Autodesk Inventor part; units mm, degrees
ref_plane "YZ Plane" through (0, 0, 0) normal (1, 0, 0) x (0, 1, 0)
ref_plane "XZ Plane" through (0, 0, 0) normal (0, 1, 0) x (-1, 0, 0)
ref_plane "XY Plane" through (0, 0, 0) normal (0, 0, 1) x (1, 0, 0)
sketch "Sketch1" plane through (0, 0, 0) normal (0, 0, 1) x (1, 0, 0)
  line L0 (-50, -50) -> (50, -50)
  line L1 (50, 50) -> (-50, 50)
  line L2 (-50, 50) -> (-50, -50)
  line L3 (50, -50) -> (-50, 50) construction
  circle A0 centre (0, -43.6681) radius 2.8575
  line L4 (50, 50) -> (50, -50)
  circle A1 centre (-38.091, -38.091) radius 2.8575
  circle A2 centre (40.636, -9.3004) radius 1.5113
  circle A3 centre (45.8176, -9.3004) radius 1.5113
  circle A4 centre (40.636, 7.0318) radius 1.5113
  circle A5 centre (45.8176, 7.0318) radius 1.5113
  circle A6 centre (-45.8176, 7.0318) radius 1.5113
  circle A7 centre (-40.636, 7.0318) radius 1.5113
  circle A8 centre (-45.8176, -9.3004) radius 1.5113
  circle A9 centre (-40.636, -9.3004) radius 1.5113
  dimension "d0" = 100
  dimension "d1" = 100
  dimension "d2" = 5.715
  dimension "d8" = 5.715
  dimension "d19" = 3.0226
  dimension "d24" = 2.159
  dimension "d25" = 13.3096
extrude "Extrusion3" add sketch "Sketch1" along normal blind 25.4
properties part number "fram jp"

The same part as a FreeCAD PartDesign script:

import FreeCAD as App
import Part
import Sketcher

V = App.Vector
Q = App.Units.Quantity

doc = App.newDocument("Part")
body = doc.addObject("PartDesign::Body", "Body")

# Sketch on XY plane
sketch1 = body.newObject("Sketcher::SketchObject", "Sketch")
sketch1.AttachmentSupport = (doc.getObject("XY_Plane"), [""])
sketch1.MapMode = "FlatFace"
sketch1.addGeometry([
    Part.LineSegment(V(-50, 50, 0), V(-50, -50, 0)),  # 0
    Part.LineSegment(V(-50, -50, 0), V(50, -50, 0)),  # 1
    Part.LineSegment(V(50, -50, 0), V(50, 50, 0)),  # 2
    Part.LineSegment(V(50, 50, 0), V(-50, 50, 0)),  # 3
    Part.Circle(V(-38.1, -38.1, 0), V(0, 0, 1), 2.9),  # 4
    Part.Circle(V(-45.8, -9.3, 0), V(0, 0, 1), 1.5),  # 5
    Part.Circle(V(-40.6, -9.3, 0), V(0, 0, 1), 1.5),  # 6
    Part.Circle(V(0, -43.7, 0), V(0, 0, 1), 2.9),  # 7
    Part.Circle(V(40.6, -9.3, 0), V(0, 0, 1), 1.5),  # 8
    Part.Circle(V(45.8, -9.3, 0), V(0, 0, 1), 1.5),  # 9
    Part.Circle(V(-45.8, 7, 0), V(0, 0, 1), 1.5),  # 10
    Part.Circle(V(-40.6, 7, 0), V(0, 0, 1), 1.5),  # 11
    Part.Circle(V(40.6, 7, 0), V(0, 0, 1), 1.5),  # 12
    Part.Circle(V(45.8, 7, 0), V(0, 0, 1), 1.5),  # 13
], False)
sketch1.addConstraint([
    Sketcher.Constraint("Coincident", 0, 2, 1, 1),
    Sketcher.Constraint("Coincident", 1, 2, 2, 1),
    Sketcher.Constraint("Coincident", 2, 2, 3, 1),
    Sketcher.Constraint("Coincident", 3, 2, 0, 1),
    Sketcher.Constraint("Vertical", 0),
    Sketcher.Constraint("Horizontal", 1),
    Sketcher.Constraint("Vertical", 2),
    Sketcher.Constraint("Horizontal", 3),
    Sketcher.Constraint("Equal", 5, 6),
    Sketcher.Constraint("Equal", 4, 7),
    Sketcher.Constraint("Equal", 6, 8),
    Sketcher.Constraint("Equal", 8, 9),
    Sketcher.Constraint("Equal", 9, 10),
    Sketcher.Constraint("Equal", 10, 11),
    Sketcher.Constraint("Equal", 11, 12),
    Sketcher.Constraint("Equal", 12, 13),
    Sketcher.Constraint("Symmetric", 0, 2, 2, 2, -1, 1),
    Sketcher.Constraint("Symmetric", 6, 3, 8, 3, -2),
    Sketcher.Constraint("Symmetric", 5, 3, 9, 3, -2),
    Sketcher.Constraint("Symmetric", 11, 3, 12, 3, -2),
    Sketcher.Constraint("Symmetric", 10, 3, 13, 3, -2),
    Sketcher.Constraint("PointOnObject", 7, 3, -2),
    Sketcher.Constraint("Horizontal", 5, 3, 6, 3),
    Sketcher.Constraint("Horizontal", 10, 3, 11, 3),
    Sketcher.Constraint("Vertical", 5, 3, 10, 3),
    Sketcher.Constraint("Vertical", 6, 3, 11, 3),
    Sketcher.Constraint("Equal", 3, 0),
    Sketcher.Constraint("Diameter", 4, Q("0.225 in")),
    Sketcher.Constraint("Diameter", 5, Q("0.119 in")),
    Sketcher.Constraint("DistanceX", 1, 1, 1, 2, Q("3.937 in")),
    Sketcher.Constraint("DistanceX", 5, 3, 6, 3, Q("0.204 in")),
    Sketcher.Constraint("DistanceY", 5, 3, 10, 3, Q("0.643 in")),
    Sketcher.Constraint("DistanceX", 5, 3, 4, 3, Q("0.3042 in")),
    Sketcher.Constraint("DistanceY", 4, 3, 5, 3, Q("1.1335 in")),
    Sketcher.Constraint("DistanceX", 4, 3, 8, 3, Q("3.0995 in")),
    Sketcher.Constraint("DistanceY", 4, 3, -1, 1, Q("38.091 mm")),
    Sketcher.Constraint("DistanceY", 7, 3, -1, 1, Q("43.668 mm")),
])
pad1 = body.newObject("PartDesign::Pad", "Pad")
pad1.Profile = sketch1
pad1.Length = Q("1 in")

doc.recompute()
